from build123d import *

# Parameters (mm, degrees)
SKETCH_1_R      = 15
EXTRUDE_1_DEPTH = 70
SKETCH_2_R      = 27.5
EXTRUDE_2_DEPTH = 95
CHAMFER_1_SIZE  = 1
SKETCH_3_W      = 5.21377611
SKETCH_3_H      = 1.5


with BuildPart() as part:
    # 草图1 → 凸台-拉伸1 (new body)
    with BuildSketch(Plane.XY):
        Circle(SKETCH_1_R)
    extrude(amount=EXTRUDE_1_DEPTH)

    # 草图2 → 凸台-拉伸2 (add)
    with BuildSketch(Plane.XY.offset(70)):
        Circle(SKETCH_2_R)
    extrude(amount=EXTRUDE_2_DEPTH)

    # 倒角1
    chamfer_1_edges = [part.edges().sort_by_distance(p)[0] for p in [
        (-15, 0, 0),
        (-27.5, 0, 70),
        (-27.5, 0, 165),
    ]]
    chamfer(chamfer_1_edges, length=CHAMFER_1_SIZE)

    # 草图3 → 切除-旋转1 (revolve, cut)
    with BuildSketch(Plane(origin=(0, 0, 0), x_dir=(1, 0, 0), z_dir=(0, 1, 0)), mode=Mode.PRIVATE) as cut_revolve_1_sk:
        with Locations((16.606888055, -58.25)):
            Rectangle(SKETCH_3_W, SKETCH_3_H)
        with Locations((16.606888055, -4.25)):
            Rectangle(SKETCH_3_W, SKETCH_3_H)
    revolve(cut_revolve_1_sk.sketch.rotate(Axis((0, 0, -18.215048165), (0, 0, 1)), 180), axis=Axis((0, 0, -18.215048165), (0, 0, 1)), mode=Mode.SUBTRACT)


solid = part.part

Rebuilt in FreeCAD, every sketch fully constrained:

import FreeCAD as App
import Part
import Sketcher

V = App.Vector
Q = App.Units.Quantity


def edges_at(feature, points):
    """Names of the edges that pass closest to the given points."""
    edges = feature.Shape.Edges
    near = lambda p: min(range(len(edges)), key=lambda i: edges[i].distToShape(Part.Vertex(*p))[0])
    return sorted({f"Edge{near(p) + 1}" for p in points})


def add_polygon(sketch, points):
    """Adds a closed chain of lines whose ends are joined by coincident constraints."""
    first, n = sketch.GeometryCount, len(points)
    for a, b in zip(points, points[1:] + points[:1]):
        sketch.addGeometry(Part.LineSegment(App.Vector(*a, 0), App.Vector(*b, 0)), False)
    for i in range(n):
        sketch.addConstraint(Sketcher.Constraint("Coincident", first + i, 2, first + (i + 1) % n, 1))

doc = App.newDocument("Part")
body = doc.addObject("PartDesign::Body", "Body")

sketch1 = body.newObject("Sketcher::SketchObject", "Sketch")
sketch1.AttachmentSupport = (doc.getObject("XY_Plane"), [""])
sketch1.MapMode = "FlatFace"
sketch1.addGeometry(Part.Circle(V(0, 0, 0), V(0, 0, 1), 15), False)
sketch1.addConstraint(Sketcher.Constraint("Coincident", 0, 3, -1, 1))
sketch1.addConstraint(Sketcher.Constraint("Diameter", 0, Q("30 mm")))
pad1 = body.newObject("PartDesign::Pad", "Pad")
pad1.Profile = sketch1
pad1.Length = 70

sketch2 = body.newObject("Sketcher::SketchObject", "Sketch001")
sketch2.AttachmentSupport = (doc.getObject("XY_Plane"), [""])
sketch2.MapMode = "FlatFace"
sketch2.AttachmentOffset = App.Placement(V(0, 0, 70), App.Rotation())
sketch2.addGeometry(Part.Circle(V(0, 0, 0), V(0, 0, 1), 27.5), False)
sketch2.addConstraint(Sketcher.Constraint("Coincident", 0, 3, -1, 1))
sketch2.addConstraint(Sketcher.Constraint("Diameter", 0, Q("55 mm")))
pad2 = body.newObject("PartDesign::Pad", "Pad001")
pad2.Profile = sketch2
pad2.Length = 95
doc.recompute()

chamfer = body.newObject("PartDesign::Chamfer", "Chamfer")
chamfer.Base = (pad2, edges_at(pad2, [(-15, 0, 0), (-27.5, 0, 70), (-27.5, 0, 165)]))
chamfer.Size = 1

sketch3 = body.newObject("Sketcher::SketchObject", "Sketch002")
sketch3.AttachmentSupport = (doc.getObject("XZ_Plane"), [""])
sketch3.MapMode = "FlatFace"
add_polygon(sketch3, [(14, 57.5), (14, 59), (19.213776, 59), (19.213776, 57.5)])
add_polygon(sketch3, [(14, 3.5), (14, 5), (19.213776, 5), (19.213776, 3.5)])
sketch3.addConstraint(Sketcher.Constraint("Vertical", 0))
sketch3.addConstraint(Sketcher.Constraint("Horizontal", 1))
sketch3.addConstraint(Sketcher.Constraint("Vertical", 2))
sketch3.addConstraint(Sketcher.Constraint("Horizontal", 3))
sketch3.addConstraint(Sketcher.Constraint("Vertical", 4))
sketch3.addConstraint(Sketcher.Constraint("Horizontal", 5))
sketch3.addConstraint(Sketcher.Constraint("Vertical", 6))
sketch3.addConstraint(Sketcher.Constraint("Horizontal", 7))
sketch3.addConstraint(Sketcher.Constraint("Vertical", 3, 2, 4, 2))
sketch3.addConstraint(Sketcher.Constraint("Vertical", 2, 2, 5, 2))
sketch3.addConstraint(Sketcher.Constraint("Equal", 2, 4))
sketch3.addConstraint(Sketcher.Constraint("DistanceY", 0, 1, 0, 2, Q("1.5 mm")))
sketch3.addConstraint(Sketcher.Constraint("DistanceX", -1, 1, 0, 2, Q("14 mm")))
sketch3.addConstraint(Sketcher.Constraint("DistanceY", -1, 1, 0, 2, Q("59 mm")))
sketch3.addConstraint(Sketcher.Constraint("DistanceY", -1, 1, 4, 2, Q("5 mm")))
sketch3.addConstraint(Sketcher.Constraint("DistanceX", 1, 1, 1, 2, Q("5.213776 mm")))
groove = body.newObject("PartDesign::Groove", "Groove")
groove.Profile = sketch3
groove.ReferenceAxis = (sketch3, ["V_Axis"])
groove.Angle = 360

doc.recompute()
